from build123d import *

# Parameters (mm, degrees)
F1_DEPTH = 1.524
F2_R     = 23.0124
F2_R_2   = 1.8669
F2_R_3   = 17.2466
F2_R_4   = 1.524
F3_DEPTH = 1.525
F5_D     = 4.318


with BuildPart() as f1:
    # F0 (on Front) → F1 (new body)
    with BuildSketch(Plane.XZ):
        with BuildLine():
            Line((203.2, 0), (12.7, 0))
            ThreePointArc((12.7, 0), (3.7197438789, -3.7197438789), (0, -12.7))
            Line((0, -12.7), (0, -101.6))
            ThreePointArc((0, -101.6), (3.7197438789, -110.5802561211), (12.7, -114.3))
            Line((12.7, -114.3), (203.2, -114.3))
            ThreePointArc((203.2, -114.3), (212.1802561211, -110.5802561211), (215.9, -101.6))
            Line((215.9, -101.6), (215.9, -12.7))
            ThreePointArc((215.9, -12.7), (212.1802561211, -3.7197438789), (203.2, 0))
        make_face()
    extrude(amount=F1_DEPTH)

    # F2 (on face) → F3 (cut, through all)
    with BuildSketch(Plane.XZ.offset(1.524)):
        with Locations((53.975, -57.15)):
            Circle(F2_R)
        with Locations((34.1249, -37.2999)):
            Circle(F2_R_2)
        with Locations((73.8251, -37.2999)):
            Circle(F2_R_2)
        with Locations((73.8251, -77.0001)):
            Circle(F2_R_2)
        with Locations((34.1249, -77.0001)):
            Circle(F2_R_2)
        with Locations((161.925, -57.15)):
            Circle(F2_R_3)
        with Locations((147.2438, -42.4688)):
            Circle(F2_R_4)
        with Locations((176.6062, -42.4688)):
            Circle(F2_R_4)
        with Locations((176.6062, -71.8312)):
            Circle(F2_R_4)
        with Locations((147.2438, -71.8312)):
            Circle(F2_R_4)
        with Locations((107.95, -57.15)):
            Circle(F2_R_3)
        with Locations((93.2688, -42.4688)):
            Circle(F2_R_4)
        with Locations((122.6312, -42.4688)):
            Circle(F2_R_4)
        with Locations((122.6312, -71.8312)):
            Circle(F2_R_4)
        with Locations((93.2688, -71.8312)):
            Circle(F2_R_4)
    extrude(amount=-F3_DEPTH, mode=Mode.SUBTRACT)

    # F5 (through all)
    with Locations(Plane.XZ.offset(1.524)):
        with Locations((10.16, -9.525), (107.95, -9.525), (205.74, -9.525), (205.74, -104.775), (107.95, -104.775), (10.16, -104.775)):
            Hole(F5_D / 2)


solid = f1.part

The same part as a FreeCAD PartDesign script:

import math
import FreeCAD as App
import Part
import Sketcher
from FreeCAD import Vector
Q = App.Units.Quantity

doc = App.newDocument("Part")
body = doc.addObject("PartDesign::Body", "Body")

# Sketch on XZ plane
sketch1 = doc.addObject("Sketcher::SketchObject", "Sketch")
body.addObject(sketch1)
sketch1.AttachmentSupport = (doc.XZ_Plane, [""])
sketch1.MapMode = "FlatFace"
sketch1.addGeometry(Part.LineSegment(Vector(203, 0, 0), Vector(13, 0, 0)), False)
sketch1.addGeometry(Part.ArcOfCircle(Part.Circle(Vector(13, -13, 0), Vector(0, 0, 1), 13), math.radians(90), math.radians(180)), False)
sketch1.addGeometry(Part.LineSegment(Vector(0, -13, 0), Vector(0, -102, 0)), False)
sketch1.addGeometry(Part.ArcOfCircle(Part.Circle(Vector(13, -102, 0), Vector(0, 0, 1), 13), math.radians(180), math.radians(270)), False)
sketch1.addGeometry(Part.LineSegment(Vector(13, -114, 0), Vector(203, -114, 0)), False)
sketch1.addGeometry(Part.ArcOfCircle(Part.Circle(Vector(203, -102, 0), Vector(0, 0, 1), 13), math.radians(-90), math.radians(0)), False)
sketch1.addGeometry(Part.LineSegment(Vector(216, -102, 0), Vector(216, -13, 0)), False)
sketch1.addGeometry(Part.ArcOfCircle(Part.Circle(Vector(203, -13, 0), Vector(0, 0, 1), 13), math.radians(0), math.radians(90)), False)
sketch1.addConstraint(Sketcher.Constraint("Tangent", 0, 2, 1, 1))
sketch1.addConstraint(Sketcher.Constraint("Tangent", 1, 2, 2, 1))
sketch1.addConstraint(Sketcher.Constraint("Tangent", 2, 2, 3, 1))
sketch1.addConstraint(Sketcher.Constraint("Tangent", 3, 2, 4, 1))
sketch1.addConstraint(Sketcher.Constraint("Tangent", 4, 2, 5, 1))
sketch1.addConstraint(Sketcher.Constraint("Tangent", 5, 2, 6, 1))
sketch1.addConstraint(Sketcher.Constraint("Tangent", 6, 2, 7, 1))
sketch1.addConstraint(Sketcher.Constraint("Tangent", 7, 2, 0, 1))
sketch1.addConstraint(Sketcher.Constraint("Horizontal", 0))
sketch1.addConstraint(Sketcher.Constraint("Vertical", 2))
sketch1.addConstraint(Sketcher.Constraint("Horizontal", 4))
sketch1.addConstraint(Sketcher.Constraint("Vertical", 6))
sketch1.addConstraint(Sketcher.Constraint("Equal", 1, 3))
sketch1.addConstraint(Sketcher.Constraint("Equal", 3, 5))
sketch1.addConstraint(Sketcher.Constraint("Equal", 5, 7))
sketch1.addConstraint(Sketcher.Constraint("PointOnObject", 0, 2, -1))
sketch1.addConstraint(Sketcher.Constraint("PointOnObject", 1, 2, -2))
sketch1.addConstraint(Sketcher.Constraint("Radius", 1, Q("0.5 in")))
sketch1.addConstraint(Sketcher.Constraint("DistanceX", 0, 2, 0, 1, Q("7.5 in")))
sketch1.addConstraint(Sketcher.Constraint("DistanceY", 2, 2, 2, 1, Q("3.5 in")))
pad1 = doc.addObject("PartDesign::Pad", "Pad")
body.addObject(pad1)
pad1.Profile = sketch1
pad1.Length = Q("0.06 in")

# Sketch on XZ plane
sketch2 = doc.addObject("Sketcher::SketchObject", "Sketch001")
body.addObject(sketch2)
sketch2.AttachmentSupport = (doc.XZ_Plane, [""])
sketch2.MapMode = "FlatFace"
sketch2.AttachmentOffset = App.Placement(Vector(0, 0, 0.06 * 25.4), App.Rotation())
sketch2.addGeometry(Part.Circle(Vector(54, -57.1, 0), Vector(0, 0, 1), 23), False)
sketch2.addGeometry(Part.Circle(Vector(34.1, -37.3, 0), Vector(0, 0, 1), 1.9), False)
sketch2.addGeometry(Part.Circle(Vector(73.8, -37.3, 0), Vector(0, 0, 1), 1.9), False)
sketch2.addGeometry(Part.Circle(Vector(73.8, -77, 0), Vector(0, 0, 1), 1.9), False)
sketch2.addGeometry(Part.Circle(Vector(34.1, -77, 0), Vector(0, 0, 1), 1.9), False)
sketch2.addGeometry(Part.Circle(Vector(161.9, -57.1, 0), Vector(0, 0, 1), 17.2), False)
sketch2.addGeometry(Part.Circle(Vector(147.2, -42.5, 0), Vector(0, 0, 1), 1.5), False)
sketch2.addGeometry(Part.Circle(Vector(176.6, -42.5, 0), Vector(0, 0, 1), 1.5), False)
sketch2.addGeometry(Part.Circle(Vector(176.6, -71.8, 0), Vector(0, 0, 1), 1.5), False)
sketch2.addGeometry(Part.Circle(Vector(147.2, -71.8, 0), Vector(0, 0, 1), 1.5), False)
sketch2.addGeometry(Part.Circle(Vector(108, -57.1, 0), Vector(0, 0, 1), 17.2), False)
sketch2.addGeometry(Part.Circle(Vector(93.3, -42.5, 0), Vector(0, 0, 1), 1.5), False)
sketch2.addGeometry(Part.Circle(Vector(122.6, -42.5, 0), Vector(0, 0, 1), 1.5), False)
sketch2.addGeometry(Part.Circle(Vector(122.6, -71.8, 0), Vector(0, 0, 1), 1.5), False)
sketch2.addGeometry(Part.Circle(Vector(93.3, -71.8, 0), Vector(0, 0, 1), 1.5), False)
sketch2.addConstraint(Sketcher.Constraint("Equal", 1, 2))
sketch2.addConstraint(Sketcher.Constraint("Equal", 2, 3))
sketch2.addConstraint(Sketcher.Constraint("Equal", 3, 4))
sketch2.addConstraint(Sketcher.Constraint("Equal", 6, 7))
sketch2.addConstraint(Sketcher.Constraint("Equal", 7, 8))
sketch2.addConstraint(Sketcher.Constraint("Equal", 8, 9))
sketch2.addConstraint(Sketcher.Constraint("Equal", 5, 10))
sketch2.addConstraint(Sketcher.Constraint("Equal", 9, 11))
sketch2.addConstraint(Sketcher.Constraint("Equal", 11, 12))
sketch2.addConstraint(Sketcher.Constraint("Equal", 12, 13))
sketch2.addConstraint(Sketcher.Constraint("Equal", 13, 14))
sketch2.addConstraint(Sketcher.Constraint("Horizontal", 1, 3, 2, 3))
sketch2.addConstraint(Sketcher.Constraint("Horizontal", 3, 3, 4, 3))
sketch2.addConstraint(Sketcher.Constraint("Horizontal", 0, 3, 5, 3))
sketch2.addConstraint(Sketcher.Constraint("Horizontal", 6, 3, 7, 3))
sketch2.addConstraint(Sketcher.Constraint("Horizontal", 8, 3, 9, 3))
sketch2.addConstraint(Sketcher.Constraint("Horizontal", 5, 3, 10, 3))
sketch2.addConstraint(Sketcher.Constraint("Horizontal", 7, 3, 11, 3))
sketch2.addConstraint(Sketcher.Constraint("Horizontal", 11, 3, 12, 3))
sketch2.addConstraint(Sketcher.Constraint("Horizontal", 9, 3, 13, 3))
sketch2.addConstraint(Sketcher.Constraint("Horizontal", 13, 3, 14, 3))
sketch2.addConstraint(Sketcher.Constraint("Vertical", 2, 3, 3, 3))
sketch2.addConstraint(Sketcher.Constraint("Vertical", 1, 3, 4, 3))
sketch2.addConstraint(Sketcher.Constraint("Vertical", 7, 3, 8, 3))
sketch2.addConstraint(Sketcher.Constraint("Vertical", 6, 3, 9, 3))
sketch2.addConstraint(Sketcher.Constraint("Vertical", 12, 3, 13, 3))
sketch2.addConstraint(Sketcher.Constraint("Vertical", 11, 3, 14, 3))
sketch2.addConstraint(Sketcher.Constraint("Diameter", 6, Q("0.12 in")))
sketch2.addConstraint(Sketcher.Constraint("Diameter", 0, Q("1.812 in")))
sketch2.addConstraint(Sketcher.Constraint("Diameter", 1, Q("0.147 in")))
sketch2.addConstraint(Sketcher.Constraint("Diameter", 5, Q("1.358 in")))
sketch2.addConstraint(Sketcher.Constraint("DistanceY", 0, 3, -1, 1, Q("2.25 in")))
sketch2.addConstraint(Sketcher.Constraint("DistanceX", -1, 1, 10, 3, Q("4.25 in")))
sketch2.addConstraint(Sketcher.Constraint("DistanceX", 0, 3, 5, 3, Q("4.25 in")))
sketch2.addConstraint(Sketcher.Constraint("DistanceX", -1, 1, 0, 3, Q("2.125 in")))
sketch2.addConstraint(Sketcher.Constraint("DistanceX", -1, 1, 6, 3, Q("5.797 in")))
sketch2.addConstraint(Sketcher.Constraint("DistanceY", 6, 3, -1, 1, Q("1.672 in")))
sketch2.addConstraint(Sketcher.Constraint("DistanceX", -1, 1, 7, 3, Q("6.953 in")))
sketch2.addConstraint(Sketcher.Constraint("DistanceY", 8, 3, -1, 1, Q("2.828 in")))
sketch2.addConstraint(Sketcher.Constraint("DistanceX", -1, 1, 11, 3, Q("3.672 in")))
sketch2.addConstraint(Sketcher.Constraint("DistanceX", -1, 1, 12, 3, Q("4.828 in")))
sketch2.addConstraint(Sketcher.Constraint("DistanceX", 1, 3, 2, 3, Q("1.563 in")))
sketch2.addConstraint(Sketcher.Constraint("DistanceY", 3, 3, 2, 3, Q("1.563 in")))
sketch2.addConstraint(Sketcher.Constraint("DistanceX", -1, 1, 1, 3, Q("1.3435 in")))
sketch2.addConstraint(Sketcher.Constraint("DistanceY", 1, 3, -1, 1, Q("1.4685 in")))
pocket1 = doc.addObject("PartDesign::Pocket", "Pocket")
body.addObject(pocket1)
pocket1.Profile = sketch2
pocket1.Type = "ThroughAll"

# Sketch on XZ plane
sketch3 = doc.addObject("Sketcher::SketchObject", "Sketch002")
body.addObject(sketch3)
sketch3.AttachmentSupport = (doc.XZ_Plane, [""])
sketch3.MapMode = "FlatFace"
sketch3.AttachmentOffset = App.Placement(Vector(0, 0, 0.06 * 25.4), App.Rotation())
sketch3.addGeometry(Part.Circle(Vector(10.2, -9.5, 0), Vector(0, 0, 1), 2.2), False)
sketch3.addGeometry(Part.Circle(Vector(108, -9.5, 0), Vector(0, 0, 1), 2.2), False)
sketch3.addGeometry(Part.Circle(Vector(205.7, -9.5, 0), Vector(0, 0, 1), 2.2), False)
sketch3.addGeometry(Part.Circle(Vector(205.7, -104.8, 0), Vector(0, 0, 1), 2.2), False)
sketch3.addGeometry(Part.Circle(Vector(108, -104.8, 0), Vector(0, 0, 1), 2.2), False)
sketch3.addGeometry(Part.Circle(Vector(10.2, -104.8, 0), Vector(0, 0, 1), 2.2), False)
sketch3.addConstraint(Sketcher.Constraint("Equal", 0, 1))
sketch3.addConstraint(Sketcher.Constraint("Equal", 1, 2))
sketch3.addConstraint(Sketcher.Constraint("Equal", 2, 3))
sketch3.addConstraint(Sketcher.Constraint("Equal", 3, 4))
sketch3.addConstraint(Sketcher.Constraint("Equal", 4, 5))
sketch3.addConstraint(Sketcher.Constraint("Horizontal", 0, 3, 1, 3))
sketch3.addConstraint(Sketcher.Constraint("Horizontal", 1, 3, 2, 3))
sketch3.addConstraint(Sketcher.Constraint("Horizontal", 3, 3, 4, 3))
sketch3.addConstraint(Sketcher.Constraint("Horizontal", 4, 3, 5, 3))
sketch3.addConstraint(Sketcher.Constraint("Vertical", 2, 3, 3, 3))
sketch3.addConstraint(Sketcher.Constraint("Vertical", 1, 3, 4, 3))
sketch3.addConstraint(Sketcher.Constraint("Vertical", 0, 3, 5, 3))
sketch3.addConstraint(Sketcher.Constraint("Diameter", 0, Q("0.17 in")))
sketch3.addConstraint(Sketcher.Constraint("DistanceX", -1, 1, 0, 3, Q("0.4 in")))
sketch3.addConstraint(Sketcher.Constraint("DistanceX", -1, 1, 2, 3, Q("8.1 in")))
sketch3.addConstraint(Sketcher.Constraint("DistanceX", -1, 1, 1, 3, Q("4.25 in")))
sketch3.addConstraint(Sketcher.Constraint("DistanceY", 3, 3, 2, 3, Q("3.75 in")))
sketch3.addConstraint(Sketcher.Constraint("DistanceY", 0, 3, -1, 1, Q("0.375 in")))
doc.recompute()
hole = doc.addObject("PartDesign::Hole", "Hole")
body.addObject(hole)
hole.Profile = sketch3
hole.ThreadType = "None"
hole.Diameter = Q("0.17 in")
hole.DepthType = "ThroughAll"

doc.recompute()
